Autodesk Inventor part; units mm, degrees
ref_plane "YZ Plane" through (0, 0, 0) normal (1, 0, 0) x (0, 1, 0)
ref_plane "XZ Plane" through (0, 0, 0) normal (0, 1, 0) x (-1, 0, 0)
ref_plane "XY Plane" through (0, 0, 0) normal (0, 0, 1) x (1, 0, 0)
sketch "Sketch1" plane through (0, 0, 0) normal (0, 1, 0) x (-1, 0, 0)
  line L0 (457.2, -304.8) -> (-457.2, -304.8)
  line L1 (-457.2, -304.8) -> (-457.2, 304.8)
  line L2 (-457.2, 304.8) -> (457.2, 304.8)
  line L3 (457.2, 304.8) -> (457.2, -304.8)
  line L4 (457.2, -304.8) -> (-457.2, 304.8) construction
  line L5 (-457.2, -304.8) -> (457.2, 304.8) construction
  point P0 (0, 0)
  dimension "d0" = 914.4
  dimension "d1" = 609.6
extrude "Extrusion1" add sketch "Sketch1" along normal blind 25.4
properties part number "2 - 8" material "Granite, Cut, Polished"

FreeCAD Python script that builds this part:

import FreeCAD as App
import Part
import Sketcher
Q = App.Units.Quantity


def add_polygon(sketch, points):
    """Adds a closed chain of lines whose ends are joined by coincident constraints."""
    first, n = sketch.GeometryCount, len(points)
    for a, b in zip(points, points[1:] + points[:1]):
        sketch.addGeometry(Part.LineSegment(App.Vector(*a, 0), App.Vector(*b, 0)), False)
    for i in range(n):
        sketch.addConstraint(Sketcher.Constraint("Coincident", first + i, 2, first + (i + 1) % n, 1))

doc = App.newDocument("Part")
body = doc.addObject("PartDesign::Body", "Body")

# Sketch on XZ plane
sketch1 = body.newObject("Sketcher::SketchObject", "Sketch")
sketch1.AttachmentSupport = (doc.getObject("XZ_Plane"), [""])
sketch1.MapMode = "FlatFace"
add_polygon(sketch1, [(457, -305), (-457, -305), (-457, 305), (457, 305)])  # lines 0-3
sketch1.addConstraint(Sketcher.Constraint("Horizontal", 0))
sketch1.addConstraint(Sketcher.Constraint("Vertical", 1))
sketch1.addConstraint(Sketcher.Constraint("Horizontal", 2))
sketch1.addConstraint(Sketcher.Constraint("Vertical", 3))
sketch1.addConstraint(Sketcher.Constraint("Symmetric", 0, 2, 2, 2, -1, 1))
sketch1.addConstraint(Sketcher.Constraint("DistanceX", 0, 2, 0, 1, Q("36 in")))
sketch1.addConstraint(Sketcher.Constraint("DistanceY", 1, 1, 1, 2, Q("24 in")))
pad1 = body.newObject("PartDesign::Pad", "Pad")
pad1.Profile = sketch1
pad1.Length = Q("1 in")
pad1.Reversed = True

doc.recompute()
